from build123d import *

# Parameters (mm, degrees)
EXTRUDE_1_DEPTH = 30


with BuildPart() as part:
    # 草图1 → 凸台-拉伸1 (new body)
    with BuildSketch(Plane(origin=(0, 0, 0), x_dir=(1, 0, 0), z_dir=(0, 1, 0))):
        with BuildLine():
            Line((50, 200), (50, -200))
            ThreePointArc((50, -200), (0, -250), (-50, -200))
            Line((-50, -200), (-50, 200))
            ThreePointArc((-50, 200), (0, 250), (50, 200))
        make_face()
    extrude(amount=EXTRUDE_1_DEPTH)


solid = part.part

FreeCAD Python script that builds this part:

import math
import FreeCAD as App
import Part
import Sketcher

V = App.Vector

doc = App.newDocument("Part")
params = doc.addObject("Spreadsheet::Sheet", "Params")
for row, (alias, value) in enumerate([
    ("sketch1_radius", "50 mm"),
    ("sketch1_height", "400 mm"),
    ("pad1_length", "30 mm"),
], start=1):
    params.set(f"A{row}", alias)
    params.set(f"B{row}", "=" + value)
    params.setAlias(f"B{row}", alias)

body = doc.addObject("PartDesign::Body", "Body")

# Sketch on XZ plane
sketch1 = doc.addObject("Sketcher::SketchObject", "Sketch")
body.addObject(sketch1)
sketch1.AttachmentSupport = (doc.XZ_Plane, [""])
sketch1.MapMode = "FlatFace"
sketch1.addGeometry([
    Part.LineSegment(V(50, 200, 0), V(50, -200, 0)),
    Part.ArcOfCircle(Part.Circle(V(0, -200, 0), V(0, 0, 1), 50), math.radians(180), math.radians(360)),
    Part.LineSegment(V(-50, -200, 0), V(-50, 200, 0)),
    Part.ArcOfCircle(Part.Circle(V(0, 200, 0), V(0, 0, 1), 50), math.radians(0), math.radians(180)),
], False)
sketch1.addConstraint([
    Sketcher.Constraint("Tangent", 0, 2, 1, 2),
    Sketcher.Constraint("Tangent", 1, 1, 2, 1),
    Sketcher.Constraint("Tangent", 2, 2, 3, 2),
    Sketcher.Constraint("Tangent", 3, 1, 0, 1),
    Sketcher.Constraint("Vertical", 0),
    Sketcher.Constraint("Vertical", 2),
    Sketcher.Constraint("Symmetric", 1, 3, 3, 3, -1, 1),
    Sketcher.Constraint("Radius", 1, 50.0),
    Sketcher.Constraint("DistanceY", 0, 2, 0, 1, 400.0),
])
sketch1.setExpression("Constraints[7]", "Params.sketch1_radius")
sketch1.setExpression("Constraints[8]", "Params.sketch1_height")
pad1 = doc.addObject("PartDesign::Pad", "Pad")
body.addObject(pad1)
pad1.Profile = sketch1
pad1.setExpression("Length", "Params.pad1_length")
pad1.Reversed = True

doc.recompute()
